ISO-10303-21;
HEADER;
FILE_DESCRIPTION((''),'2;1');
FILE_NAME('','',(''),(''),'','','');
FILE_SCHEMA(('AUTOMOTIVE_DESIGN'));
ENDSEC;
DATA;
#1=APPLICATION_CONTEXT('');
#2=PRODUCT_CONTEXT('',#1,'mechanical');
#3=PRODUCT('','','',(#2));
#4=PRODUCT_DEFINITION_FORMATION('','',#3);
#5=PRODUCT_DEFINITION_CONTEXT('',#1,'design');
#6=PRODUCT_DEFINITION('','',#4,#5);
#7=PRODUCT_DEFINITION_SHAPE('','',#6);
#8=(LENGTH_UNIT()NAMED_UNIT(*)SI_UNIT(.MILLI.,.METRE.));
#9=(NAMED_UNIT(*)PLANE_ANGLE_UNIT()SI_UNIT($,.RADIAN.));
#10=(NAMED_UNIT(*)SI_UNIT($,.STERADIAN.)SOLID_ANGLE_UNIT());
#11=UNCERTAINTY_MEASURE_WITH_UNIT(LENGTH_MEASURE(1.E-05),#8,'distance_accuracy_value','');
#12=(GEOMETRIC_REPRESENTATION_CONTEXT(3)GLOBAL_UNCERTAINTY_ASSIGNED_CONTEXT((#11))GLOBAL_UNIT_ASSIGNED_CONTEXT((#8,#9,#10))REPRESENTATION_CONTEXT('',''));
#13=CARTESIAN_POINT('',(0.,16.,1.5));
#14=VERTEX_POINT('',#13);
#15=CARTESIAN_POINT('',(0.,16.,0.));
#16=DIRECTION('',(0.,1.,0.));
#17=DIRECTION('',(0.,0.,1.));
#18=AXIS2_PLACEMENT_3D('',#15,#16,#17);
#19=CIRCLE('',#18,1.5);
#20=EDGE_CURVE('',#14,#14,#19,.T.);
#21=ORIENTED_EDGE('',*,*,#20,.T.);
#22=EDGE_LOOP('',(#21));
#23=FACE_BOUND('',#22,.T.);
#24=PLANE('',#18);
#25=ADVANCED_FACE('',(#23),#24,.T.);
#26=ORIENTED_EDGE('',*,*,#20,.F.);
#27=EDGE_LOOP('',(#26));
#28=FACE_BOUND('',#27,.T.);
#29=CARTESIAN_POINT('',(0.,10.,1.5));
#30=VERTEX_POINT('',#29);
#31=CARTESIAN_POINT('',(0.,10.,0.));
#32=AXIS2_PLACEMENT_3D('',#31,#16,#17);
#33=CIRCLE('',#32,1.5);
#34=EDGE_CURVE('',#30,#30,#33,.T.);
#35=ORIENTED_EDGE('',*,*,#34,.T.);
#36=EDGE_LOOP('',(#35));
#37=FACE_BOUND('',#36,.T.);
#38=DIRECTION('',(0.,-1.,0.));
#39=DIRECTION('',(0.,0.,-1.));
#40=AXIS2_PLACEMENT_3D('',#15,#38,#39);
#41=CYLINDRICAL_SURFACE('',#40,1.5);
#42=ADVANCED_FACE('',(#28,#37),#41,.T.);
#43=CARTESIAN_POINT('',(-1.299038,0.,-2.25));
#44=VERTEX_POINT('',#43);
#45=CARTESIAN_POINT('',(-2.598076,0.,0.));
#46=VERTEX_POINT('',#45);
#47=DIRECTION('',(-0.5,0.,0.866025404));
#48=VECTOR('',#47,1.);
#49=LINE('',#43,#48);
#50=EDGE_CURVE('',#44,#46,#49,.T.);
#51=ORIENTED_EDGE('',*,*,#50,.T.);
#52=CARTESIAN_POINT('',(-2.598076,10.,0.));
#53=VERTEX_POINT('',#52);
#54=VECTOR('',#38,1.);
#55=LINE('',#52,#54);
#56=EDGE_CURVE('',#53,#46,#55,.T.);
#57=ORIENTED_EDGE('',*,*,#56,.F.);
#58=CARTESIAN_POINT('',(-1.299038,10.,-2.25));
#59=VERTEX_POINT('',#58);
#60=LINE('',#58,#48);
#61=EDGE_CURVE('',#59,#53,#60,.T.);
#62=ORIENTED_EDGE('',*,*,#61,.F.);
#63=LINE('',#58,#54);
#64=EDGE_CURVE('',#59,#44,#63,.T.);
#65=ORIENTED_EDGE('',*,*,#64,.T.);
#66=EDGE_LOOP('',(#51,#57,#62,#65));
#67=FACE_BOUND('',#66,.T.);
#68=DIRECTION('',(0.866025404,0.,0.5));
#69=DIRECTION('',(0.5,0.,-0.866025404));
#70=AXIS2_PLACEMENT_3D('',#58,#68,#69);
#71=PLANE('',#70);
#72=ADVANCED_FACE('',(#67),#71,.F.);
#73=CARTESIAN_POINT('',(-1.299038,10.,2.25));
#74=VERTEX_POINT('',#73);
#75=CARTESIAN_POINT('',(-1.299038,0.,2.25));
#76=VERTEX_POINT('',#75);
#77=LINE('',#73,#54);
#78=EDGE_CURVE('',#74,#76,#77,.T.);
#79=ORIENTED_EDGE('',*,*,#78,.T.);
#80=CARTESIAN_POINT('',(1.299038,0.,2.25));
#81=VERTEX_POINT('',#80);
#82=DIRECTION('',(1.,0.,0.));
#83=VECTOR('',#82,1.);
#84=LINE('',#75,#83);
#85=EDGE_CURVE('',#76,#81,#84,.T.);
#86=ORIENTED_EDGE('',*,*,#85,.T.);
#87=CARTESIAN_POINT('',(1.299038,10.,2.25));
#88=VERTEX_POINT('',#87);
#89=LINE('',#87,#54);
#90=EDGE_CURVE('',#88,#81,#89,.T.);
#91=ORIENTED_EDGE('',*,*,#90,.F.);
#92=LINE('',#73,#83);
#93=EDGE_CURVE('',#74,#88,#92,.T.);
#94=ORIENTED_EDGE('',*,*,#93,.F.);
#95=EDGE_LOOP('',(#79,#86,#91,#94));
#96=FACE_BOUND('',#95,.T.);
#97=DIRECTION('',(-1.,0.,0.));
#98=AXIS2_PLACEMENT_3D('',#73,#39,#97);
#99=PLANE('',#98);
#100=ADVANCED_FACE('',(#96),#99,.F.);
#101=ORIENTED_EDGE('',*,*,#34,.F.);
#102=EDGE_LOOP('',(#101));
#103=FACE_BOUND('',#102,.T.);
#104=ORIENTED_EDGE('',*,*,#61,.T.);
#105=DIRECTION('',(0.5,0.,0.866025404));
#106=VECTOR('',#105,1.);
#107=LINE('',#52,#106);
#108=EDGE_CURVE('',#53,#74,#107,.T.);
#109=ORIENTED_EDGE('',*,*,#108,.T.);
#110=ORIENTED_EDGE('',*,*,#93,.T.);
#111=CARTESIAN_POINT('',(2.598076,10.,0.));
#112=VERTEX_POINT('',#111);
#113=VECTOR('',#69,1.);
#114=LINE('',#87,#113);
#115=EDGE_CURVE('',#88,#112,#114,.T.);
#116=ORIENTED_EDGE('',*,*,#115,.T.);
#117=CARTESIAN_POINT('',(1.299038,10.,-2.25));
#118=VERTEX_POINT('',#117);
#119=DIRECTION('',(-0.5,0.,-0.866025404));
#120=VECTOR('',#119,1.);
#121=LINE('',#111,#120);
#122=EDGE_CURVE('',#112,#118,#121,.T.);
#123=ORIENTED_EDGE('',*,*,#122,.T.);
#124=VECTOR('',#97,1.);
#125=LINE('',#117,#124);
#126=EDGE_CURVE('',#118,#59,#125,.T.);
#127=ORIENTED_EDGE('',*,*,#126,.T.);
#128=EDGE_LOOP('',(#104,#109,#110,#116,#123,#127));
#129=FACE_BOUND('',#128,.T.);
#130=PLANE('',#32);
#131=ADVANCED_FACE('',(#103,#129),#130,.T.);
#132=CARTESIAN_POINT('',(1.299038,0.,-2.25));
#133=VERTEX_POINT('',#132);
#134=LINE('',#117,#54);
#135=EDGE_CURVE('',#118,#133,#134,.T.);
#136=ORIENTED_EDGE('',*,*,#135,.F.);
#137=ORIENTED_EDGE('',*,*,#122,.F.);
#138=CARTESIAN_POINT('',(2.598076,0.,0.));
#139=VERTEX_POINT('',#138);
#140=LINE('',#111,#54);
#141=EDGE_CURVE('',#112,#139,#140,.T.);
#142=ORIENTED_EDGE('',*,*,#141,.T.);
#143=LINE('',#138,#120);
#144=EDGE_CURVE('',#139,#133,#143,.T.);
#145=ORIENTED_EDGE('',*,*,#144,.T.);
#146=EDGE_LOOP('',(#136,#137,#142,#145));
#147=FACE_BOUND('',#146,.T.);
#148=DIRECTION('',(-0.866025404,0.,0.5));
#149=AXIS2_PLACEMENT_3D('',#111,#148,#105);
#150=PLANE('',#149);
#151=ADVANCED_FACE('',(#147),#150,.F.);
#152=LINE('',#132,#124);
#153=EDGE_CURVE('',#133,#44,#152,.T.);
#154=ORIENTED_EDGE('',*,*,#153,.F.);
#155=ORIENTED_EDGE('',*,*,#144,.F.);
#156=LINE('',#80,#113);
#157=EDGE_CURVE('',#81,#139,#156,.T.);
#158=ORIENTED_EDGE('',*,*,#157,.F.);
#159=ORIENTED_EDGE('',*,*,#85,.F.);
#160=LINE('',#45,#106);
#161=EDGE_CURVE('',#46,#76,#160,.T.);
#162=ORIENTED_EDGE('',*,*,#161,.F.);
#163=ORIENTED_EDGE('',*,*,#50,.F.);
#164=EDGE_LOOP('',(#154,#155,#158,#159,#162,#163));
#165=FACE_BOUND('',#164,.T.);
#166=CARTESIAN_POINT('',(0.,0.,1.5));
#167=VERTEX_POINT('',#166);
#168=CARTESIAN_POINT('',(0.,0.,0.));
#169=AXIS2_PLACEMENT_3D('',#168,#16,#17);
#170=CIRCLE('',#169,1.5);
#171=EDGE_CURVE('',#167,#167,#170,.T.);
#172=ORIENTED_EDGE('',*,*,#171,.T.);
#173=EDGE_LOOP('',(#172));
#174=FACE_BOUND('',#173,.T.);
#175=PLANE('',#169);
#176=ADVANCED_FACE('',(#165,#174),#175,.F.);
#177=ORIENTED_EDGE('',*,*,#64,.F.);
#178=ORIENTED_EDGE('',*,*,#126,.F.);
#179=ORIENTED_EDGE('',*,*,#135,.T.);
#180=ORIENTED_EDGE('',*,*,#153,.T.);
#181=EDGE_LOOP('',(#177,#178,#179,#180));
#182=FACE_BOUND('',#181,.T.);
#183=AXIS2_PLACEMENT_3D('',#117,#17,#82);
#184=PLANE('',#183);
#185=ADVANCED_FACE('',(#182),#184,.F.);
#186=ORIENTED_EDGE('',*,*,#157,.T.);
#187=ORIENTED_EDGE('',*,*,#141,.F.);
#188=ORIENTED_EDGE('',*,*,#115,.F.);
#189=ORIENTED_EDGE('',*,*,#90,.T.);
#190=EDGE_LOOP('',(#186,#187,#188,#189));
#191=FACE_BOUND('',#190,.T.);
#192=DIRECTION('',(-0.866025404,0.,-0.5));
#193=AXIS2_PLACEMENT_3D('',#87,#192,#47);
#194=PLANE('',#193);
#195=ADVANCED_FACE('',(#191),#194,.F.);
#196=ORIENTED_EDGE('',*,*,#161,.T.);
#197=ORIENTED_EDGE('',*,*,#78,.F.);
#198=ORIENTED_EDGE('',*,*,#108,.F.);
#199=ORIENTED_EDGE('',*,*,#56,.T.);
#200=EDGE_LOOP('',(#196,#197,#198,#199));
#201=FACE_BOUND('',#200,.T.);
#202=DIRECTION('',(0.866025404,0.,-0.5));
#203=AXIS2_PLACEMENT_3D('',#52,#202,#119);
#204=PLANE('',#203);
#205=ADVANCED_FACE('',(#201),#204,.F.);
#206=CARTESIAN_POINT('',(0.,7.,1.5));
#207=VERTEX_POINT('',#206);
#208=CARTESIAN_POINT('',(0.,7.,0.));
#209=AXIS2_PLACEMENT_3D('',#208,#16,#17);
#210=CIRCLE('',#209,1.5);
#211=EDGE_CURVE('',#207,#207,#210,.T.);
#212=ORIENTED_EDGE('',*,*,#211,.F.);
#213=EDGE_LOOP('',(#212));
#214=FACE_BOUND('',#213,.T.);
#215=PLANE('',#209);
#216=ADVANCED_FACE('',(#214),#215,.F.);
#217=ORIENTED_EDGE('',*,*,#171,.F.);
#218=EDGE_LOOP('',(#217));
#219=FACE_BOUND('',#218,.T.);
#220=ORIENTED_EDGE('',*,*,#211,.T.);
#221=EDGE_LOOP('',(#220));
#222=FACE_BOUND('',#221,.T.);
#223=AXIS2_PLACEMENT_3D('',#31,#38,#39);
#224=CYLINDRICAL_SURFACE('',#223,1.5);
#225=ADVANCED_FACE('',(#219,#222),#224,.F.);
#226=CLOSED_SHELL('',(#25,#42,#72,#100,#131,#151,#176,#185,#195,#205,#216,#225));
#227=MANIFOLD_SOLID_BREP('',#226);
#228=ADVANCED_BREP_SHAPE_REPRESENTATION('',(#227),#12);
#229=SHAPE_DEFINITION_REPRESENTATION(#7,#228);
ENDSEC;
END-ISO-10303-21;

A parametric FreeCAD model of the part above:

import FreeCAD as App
import Part
import Sketcher
Q = App.Units.Quantity

doc = App.newDocument("Part")
params = doc.addObject("Spreadsheet::Sheet", "Params")
for row, (alias, value) in enumerate([
    ("sketch1_diameter", "3 mm"),
    ("pad1_length", "10 mm"),
    ("pad2_length", "3 mm"),
    ("sketch3_diameter", "3 mm"),
    ("pad3_length", "6 mm"),
], start=1):
    params.set(f"A{row}", alias)
    params.set(f"B{row}", "=" + value)
    params.setAlias(f"B{row}", alias)

body = doc.addObject("PartDesign::Body", "Body")

# Sketch on XZ plane
sketch1 = body.newObject("Sketcher::SketchObject", "Sketch")
sketch1.AttachmentSupport = (doc.getObject("XZ_Plane"), [""])
sketch1.MapMode = "FlatFace"
sketch1.addGeometry([
    Part.LineSegment(App.Vector(2.6, 0, 0), App.Vector(1.3, -2.2, 0)),  # 0
    Part.LineSegment(App.Vector(1.3, -2.2, 0), App.Vector(-1.3, -2.2, 0)),  # 1
    Part.LineSegment(App.Vector(-1.3, -2.2, 0), App.Vector(-2.6, 0, 0)),  # 2
    Part.LineSegment(App.Vector(-2.6, 0, 0), App.Vector(-1.3, 2.2, 0)),  # 3
    Part.LineSegment(App.Vector(-1.3, 2.2, 0), App.Vector(1.3, 2.2, 0)),  # 4
    Part.LineSegment(App.Vector(1.3, 2.2, 0), App.Vector(2.6, 0, 0)),  # 5
    Part.Circle(App.Vector(0, 0, 0), App.Vector(0, 0, 1), 1.5),  # 6
], False)
sketch1.addConstraint([
    Sketcher.Constraint("Coincident", 0, 2, 1, 1),
    Sketcher.Constraint("Coincident", 1, 2, 2, 1),
    Sketcher.Constraint("Coincident", 2, 2, 3, 1),
    Sketcher.Constraint("Coincident", 3, 2, 4, 1),
    Sketcher.Constraint("Coincident", 4, 2, 5, 1),
    Sketcher.Constraint("Coincident", 5, 2, 0, 1),
    Sketcher.Constraint("Horizontal", 1),
    Sketcher.Constraint("Horizontal", 4),
    Sketcher.Constraint("Coincident", 6, 3, -1, 1),
    Sketcher.Constraint("Symmetric", 0, 2, 3, 2, -1, 1),
    Sketcher.Constraint("Symmetric", 2, 2, 5, 2, -1, 1),
    Sketcher.Constraint("PointOnObject", 2, 2, -1),
    Sketcher.Constraint("Parallel", 2, 5),
    Sketcher.Constraint("Vertical", 1, 2, 3, 2),
    Sketcher.Constraint("Diameter", 6, Q("3 mm")),
    Sketcher.Constraint("Angle", 0, Q("-120 deg")),
    Sketcher.Constraint("DistanceY", 1, 2, 3, 2, Q("4.5 mm")),
    Sketcher.Constraint("DistanceX", 1, 2, 1, 1, Q("2.598076 mm")),
])
sketch1.setExpression("Constraints[14]", "Params.sketch1_diameter")
pad1 = body.newObject("PartDesign::Pad", "Pad")
pad1.Profile = sketch1
pad1.setExpression("Length", "Params.pad1_length")
pad1.Reversed = True

# Sketch on XZ plane
sketch2 = body.newObject("Sketcher::SketchObject", "Sketch001")
sketch2.AttachmentSupport = (doc.getObject("XZ_Plane"), [""])
sketch2.MapMode = "FlatFace"
sketch2.AttachmentOffset = App.Placement(App.Vector(0, 0, -10), App.Rotation())
sketch2.addGeometry([
    Part.LineSegment(App.Vector(2.6, 0, 0), App.Vector(1.3, -2.2, 0)),  # 0
    Part.LineSegment(App.Vector(1.3, -2.2, 0), App.Vector(-1.3, -2.2, 0)),  # 1
    Part.LineSegment(App.Vector(-1.3, -2.2, 0), App.Vector(-2.6, 0, 0)),  # 2
    Part.LineSegment(App.Vector(-2.6, 0, 0), App.Vector(-1.3, 2.2, 0)),  # 3
    Part.LineSegment(App.Vector(-1.3, 2.2, 0), App.Vector(1.3, 2.2, 0)),  # 4
    Part.LineSegment(App.Vector(1.3, 2.2, 0), App.Vector(2.6, 0, 0)),  # 5
], False)
sketch2.addConstraint([
    Sketcher.Constraint("Coincident", 0, 2, 1, 1),
    Sketcher.Constraint("Coincident", 1, 2, 2, 1),
    Sketcher.Constraint("Coincident", 2, 2, 3, 1),
    Sketcher.Constraint("Coincident", 3, 2, 4, 1),
    Sketcher.Constraint("Coincident", 4, 2, 5, 1),
    Sketcher.Constraint("Coincident", 5, 2, 0, 1),
    Sketcher.Constraint("Horizontal", 1),
    Sketcher.Constraint("Horizontal", 4),
    Sketcher.Constraint("Symmetric", 0, 2, 3, 2, -1, 1),
    Sketcher.Constraint("Symmetric", 2, 2, 5, 2, -1, 1),
    Sketcher.Constraint("PointOnObject", 2, 2, -1),
    Sketcher.Constraint("Parallel", 2, 5),
    Sketcher.Constraint("Vertical", 1, 2, 3, 2),
    Sketcher.Constraint("Angle", 0, Q("-120 deg")),
    Sketcher.Constraint("DistanceY", 1, 2, 3, 2, Q("4.5 mm")),
    Sketcher.Constraint("DistanceX", 1, 2, 1, 1, Q("2.598076 mm")),
])
pad2 = body.newObject("PartDesign::Pad", "Pad001")
pad2.Profile = sketch2
pad2.setExpression("Length", "Params.pad2_length")

# Sketch on XZ plane
sketch3 = body.newObject("Sketcher::SketchObject", "Sketch002")
sketch3.AttachmentSupport = (doc.getObject("XZ_Plane"), [""])
sketch3.MapMode = "FlatFace"
sketch3.AttachmentOffset = App.Placement(App.Vector(0, 0, -10), App.Rotation())
sketch3.addGeometry(Part.Circle(App.Vector(0, 0, 0), App.Vector(0, 0, 1), 1.5), False)
sketch3.addConstraint([
    Sketcher.Constraint("Coincident", 0, 3, -1, 1),
    Sketcher.Constraint("Diameter", 0, Q("3 mm")),
])
sketch3.setExpression("Constraints[1]", "Params.sketch3_diameter")
pad3 = body.newObject("PartDesign::Pad", "Pad002")
pad3.Profile = sketch3
pad3.setExpression("Length", "Params.pad3_length")
pad3.Reversed = True

doc.recompute()
